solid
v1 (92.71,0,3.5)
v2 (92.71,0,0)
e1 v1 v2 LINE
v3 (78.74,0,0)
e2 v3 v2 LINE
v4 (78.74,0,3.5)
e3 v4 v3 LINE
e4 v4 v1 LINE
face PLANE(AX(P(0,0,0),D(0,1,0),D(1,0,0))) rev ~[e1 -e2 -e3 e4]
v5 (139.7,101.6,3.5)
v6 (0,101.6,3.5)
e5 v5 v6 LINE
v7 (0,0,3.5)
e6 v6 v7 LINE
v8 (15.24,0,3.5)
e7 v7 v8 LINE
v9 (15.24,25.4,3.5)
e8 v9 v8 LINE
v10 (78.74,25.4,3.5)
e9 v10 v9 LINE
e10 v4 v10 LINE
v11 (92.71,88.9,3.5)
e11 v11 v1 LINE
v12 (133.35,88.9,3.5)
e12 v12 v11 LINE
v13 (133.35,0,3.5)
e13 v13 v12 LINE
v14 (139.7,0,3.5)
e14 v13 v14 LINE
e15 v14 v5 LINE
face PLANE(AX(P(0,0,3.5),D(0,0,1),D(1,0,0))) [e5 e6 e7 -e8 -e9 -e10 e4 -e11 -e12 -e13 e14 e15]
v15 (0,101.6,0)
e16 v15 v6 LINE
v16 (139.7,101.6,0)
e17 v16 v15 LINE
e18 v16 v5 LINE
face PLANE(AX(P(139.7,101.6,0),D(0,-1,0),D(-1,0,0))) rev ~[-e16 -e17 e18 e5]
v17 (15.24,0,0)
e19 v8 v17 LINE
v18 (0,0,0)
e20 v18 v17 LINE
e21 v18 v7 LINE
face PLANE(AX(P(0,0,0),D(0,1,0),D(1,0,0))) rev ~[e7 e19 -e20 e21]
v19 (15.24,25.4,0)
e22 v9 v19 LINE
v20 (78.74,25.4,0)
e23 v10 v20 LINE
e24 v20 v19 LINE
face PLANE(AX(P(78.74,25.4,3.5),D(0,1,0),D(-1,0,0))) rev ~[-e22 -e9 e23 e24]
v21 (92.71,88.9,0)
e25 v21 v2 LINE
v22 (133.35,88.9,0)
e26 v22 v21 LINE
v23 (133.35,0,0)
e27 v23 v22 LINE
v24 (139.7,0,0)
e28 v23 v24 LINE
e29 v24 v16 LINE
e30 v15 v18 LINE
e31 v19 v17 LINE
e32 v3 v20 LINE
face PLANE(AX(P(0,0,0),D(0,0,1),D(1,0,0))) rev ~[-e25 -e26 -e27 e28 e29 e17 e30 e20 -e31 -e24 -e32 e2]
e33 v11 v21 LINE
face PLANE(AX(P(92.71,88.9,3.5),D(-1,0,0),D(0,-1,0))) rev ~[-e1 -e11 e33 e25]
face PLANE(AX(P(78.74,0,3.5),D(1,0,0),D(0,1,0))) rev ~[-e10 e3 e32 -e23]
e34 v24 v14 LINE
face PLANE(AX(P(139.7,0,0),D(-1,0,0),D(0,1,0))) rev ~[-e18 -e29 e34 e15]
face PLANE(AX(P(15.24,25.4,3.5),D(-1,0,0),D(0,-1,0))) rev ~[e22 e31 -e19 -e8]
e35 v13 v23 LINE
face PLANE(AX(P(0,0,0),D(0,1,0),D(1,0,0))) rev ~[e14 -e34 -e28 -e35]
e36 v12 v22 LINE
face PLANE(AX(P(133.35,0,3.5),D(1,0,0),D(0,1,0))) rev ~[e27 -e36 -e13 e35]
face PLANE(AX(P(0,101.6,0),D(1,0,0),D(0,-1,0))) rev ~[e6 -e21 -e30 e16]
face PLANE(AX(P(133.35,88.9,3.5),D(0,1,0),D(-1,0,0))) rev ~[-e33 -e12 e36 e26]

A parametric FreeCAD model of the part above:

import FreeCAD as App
import Part
import Sketcher

V = App.Vector
Q = App.Units.Quantity


def add_polygon(sketch, points):
    """Adds a closed chain of lines whose ends are joined by coincident constraints."""
    first, n = sketch.GeometryCount, len(points)
    for a, b in zip(points, points[1:] + points[:1]):
        sketch.addGeometry(Part.LineSegment(App.Vector(*a, 0), App.Vector(*b, 0)), False)
    for i in range(n):
        sketch.addConstraint(Sketcher.Constraint("Coincident", first + i, 2, first + (i + 1) % n, 1))

doc = App.newDocument("Part")
body = doc.addObject("PartDesign::Body", "Body")

# Sketch on XY plane
sketch1 = body.newObject("Sketcher::SketchObject", "Sketch")
sketch1.AttachmentSupport = (doc.getObject("XY_Plane"), [""])
sketch1.MapMode = "FlatFace"
add_polygon(sketch1, [(0, 102), (0, 0), (140, 0), (140, 102)])  # lines 0-3
sketch1.addConstraint([
    Sketcher.Constraint("Vertical", 0),
    Sketcher.Constraint("Horizontal", 1),
    Sketcher.Constraint("Vertical", 2),
    Sketcher.Constraint("Horizontal", 3),
    Sketcher.Constraint("Coincident", 0, 2, -1, 1),
    Sketcher.Constraint("DistanceY", 0, 2, 0, 1, Q("4 in")),
    Sketcher.Constraint("DistanceX", 1, 1, 1, 2, Q("5.5 in")),
])
pad1 = body.newObject("PartDesign::Pad", "Pad")
pad1.Profile = sketch1
pad1.Length = Q("0.1377953 in")

# Sketch on XY plane
sketch2 = body.newObject("Sketcher::SketchObject", "Sketch001")
sketch2.AttachmentSupport = (doc.getObject("XY_Plane"), [""])
sketch2.MapMode = "FlatFace"
sketch2.AttachmentOffset = App.Placement(V(0, 0, 0.1377953 * 25.4), App.Rotation())
add_polygon(sketch2, [(93, 89), (93, 0), (133, 0), (133, 89)])  # lines 0-3
sketch2.addConstraint([
    Sketcher.Constraint("Vertical", 0),
    Sketcher.Constraint("Horizontal", 1),
    Sketcher.Constraint("Vertical", 2),
    Sketcher.Constraint("Horizontal", 3),
    Sketcher.Constraint("PointOnObject", 0, 2, -1),
    Sketcher.Constraint("DistanceX", 1, 1, 1, 2, Q("1.6 in")),
    Sketcher.Constraint("DistanceY", 0, 2, 0, 1, Q("3.5 in")),
    Sketcher.Constraint("DistanceX", -1, 1, 0, 2, Q("3.65 in")),
])
pocket1 = body.newObject("PartDesign::Pocket", "Pocket")
pocket1.Profile = sketch2
pocket1.Length = Q("0.1377953 in")

# Sketch on XY plane
sketch3 = body.newObject("Sketcher::SketchObject", "Sketch002")
sketch3.AttachmentSupport = (doc.getObject("XY_Plane"), [""])
sketch3.MapMode = "FlatFace"
sketch3.AttachmentOffset = App.Placement(V(0, 0, 0.1377953 * 25.4), App.Rotation())
add_polygon(sketch3, [(15, 25), (15, 0), (79, 0), (79, 25)])  # lines 0-3
sketch3.addConstraint([
    Sketcher.Constraint("Vertical", 0),
    Sketcher.Constraint("Horizontal", 1),
    Sketcher.Constraint("Vertical", 2),
    Sketcher.Constraint("Horizontal", 3),
    Sketcher.Constraint("PointOnObject", 0, 2, -1),
    Sketcher.Constraint("DistanceY", 0, 2, 0, 1, Q("1 in")),
    Sketcher.Constraint("DistanceX", 1, 1, 1, 2, Q("2.5 in")),
    Sketcher.Constraint("DistanceX", -1, 1, 0, 2, Q("0.6 in")),
])
pocket2 = body.newObject("PartDesign::Pocket", "Pocket001")
pocket2.Profile = sketch3
pocket2.Length = Q("0.1377953 in")

doc.recompute()
